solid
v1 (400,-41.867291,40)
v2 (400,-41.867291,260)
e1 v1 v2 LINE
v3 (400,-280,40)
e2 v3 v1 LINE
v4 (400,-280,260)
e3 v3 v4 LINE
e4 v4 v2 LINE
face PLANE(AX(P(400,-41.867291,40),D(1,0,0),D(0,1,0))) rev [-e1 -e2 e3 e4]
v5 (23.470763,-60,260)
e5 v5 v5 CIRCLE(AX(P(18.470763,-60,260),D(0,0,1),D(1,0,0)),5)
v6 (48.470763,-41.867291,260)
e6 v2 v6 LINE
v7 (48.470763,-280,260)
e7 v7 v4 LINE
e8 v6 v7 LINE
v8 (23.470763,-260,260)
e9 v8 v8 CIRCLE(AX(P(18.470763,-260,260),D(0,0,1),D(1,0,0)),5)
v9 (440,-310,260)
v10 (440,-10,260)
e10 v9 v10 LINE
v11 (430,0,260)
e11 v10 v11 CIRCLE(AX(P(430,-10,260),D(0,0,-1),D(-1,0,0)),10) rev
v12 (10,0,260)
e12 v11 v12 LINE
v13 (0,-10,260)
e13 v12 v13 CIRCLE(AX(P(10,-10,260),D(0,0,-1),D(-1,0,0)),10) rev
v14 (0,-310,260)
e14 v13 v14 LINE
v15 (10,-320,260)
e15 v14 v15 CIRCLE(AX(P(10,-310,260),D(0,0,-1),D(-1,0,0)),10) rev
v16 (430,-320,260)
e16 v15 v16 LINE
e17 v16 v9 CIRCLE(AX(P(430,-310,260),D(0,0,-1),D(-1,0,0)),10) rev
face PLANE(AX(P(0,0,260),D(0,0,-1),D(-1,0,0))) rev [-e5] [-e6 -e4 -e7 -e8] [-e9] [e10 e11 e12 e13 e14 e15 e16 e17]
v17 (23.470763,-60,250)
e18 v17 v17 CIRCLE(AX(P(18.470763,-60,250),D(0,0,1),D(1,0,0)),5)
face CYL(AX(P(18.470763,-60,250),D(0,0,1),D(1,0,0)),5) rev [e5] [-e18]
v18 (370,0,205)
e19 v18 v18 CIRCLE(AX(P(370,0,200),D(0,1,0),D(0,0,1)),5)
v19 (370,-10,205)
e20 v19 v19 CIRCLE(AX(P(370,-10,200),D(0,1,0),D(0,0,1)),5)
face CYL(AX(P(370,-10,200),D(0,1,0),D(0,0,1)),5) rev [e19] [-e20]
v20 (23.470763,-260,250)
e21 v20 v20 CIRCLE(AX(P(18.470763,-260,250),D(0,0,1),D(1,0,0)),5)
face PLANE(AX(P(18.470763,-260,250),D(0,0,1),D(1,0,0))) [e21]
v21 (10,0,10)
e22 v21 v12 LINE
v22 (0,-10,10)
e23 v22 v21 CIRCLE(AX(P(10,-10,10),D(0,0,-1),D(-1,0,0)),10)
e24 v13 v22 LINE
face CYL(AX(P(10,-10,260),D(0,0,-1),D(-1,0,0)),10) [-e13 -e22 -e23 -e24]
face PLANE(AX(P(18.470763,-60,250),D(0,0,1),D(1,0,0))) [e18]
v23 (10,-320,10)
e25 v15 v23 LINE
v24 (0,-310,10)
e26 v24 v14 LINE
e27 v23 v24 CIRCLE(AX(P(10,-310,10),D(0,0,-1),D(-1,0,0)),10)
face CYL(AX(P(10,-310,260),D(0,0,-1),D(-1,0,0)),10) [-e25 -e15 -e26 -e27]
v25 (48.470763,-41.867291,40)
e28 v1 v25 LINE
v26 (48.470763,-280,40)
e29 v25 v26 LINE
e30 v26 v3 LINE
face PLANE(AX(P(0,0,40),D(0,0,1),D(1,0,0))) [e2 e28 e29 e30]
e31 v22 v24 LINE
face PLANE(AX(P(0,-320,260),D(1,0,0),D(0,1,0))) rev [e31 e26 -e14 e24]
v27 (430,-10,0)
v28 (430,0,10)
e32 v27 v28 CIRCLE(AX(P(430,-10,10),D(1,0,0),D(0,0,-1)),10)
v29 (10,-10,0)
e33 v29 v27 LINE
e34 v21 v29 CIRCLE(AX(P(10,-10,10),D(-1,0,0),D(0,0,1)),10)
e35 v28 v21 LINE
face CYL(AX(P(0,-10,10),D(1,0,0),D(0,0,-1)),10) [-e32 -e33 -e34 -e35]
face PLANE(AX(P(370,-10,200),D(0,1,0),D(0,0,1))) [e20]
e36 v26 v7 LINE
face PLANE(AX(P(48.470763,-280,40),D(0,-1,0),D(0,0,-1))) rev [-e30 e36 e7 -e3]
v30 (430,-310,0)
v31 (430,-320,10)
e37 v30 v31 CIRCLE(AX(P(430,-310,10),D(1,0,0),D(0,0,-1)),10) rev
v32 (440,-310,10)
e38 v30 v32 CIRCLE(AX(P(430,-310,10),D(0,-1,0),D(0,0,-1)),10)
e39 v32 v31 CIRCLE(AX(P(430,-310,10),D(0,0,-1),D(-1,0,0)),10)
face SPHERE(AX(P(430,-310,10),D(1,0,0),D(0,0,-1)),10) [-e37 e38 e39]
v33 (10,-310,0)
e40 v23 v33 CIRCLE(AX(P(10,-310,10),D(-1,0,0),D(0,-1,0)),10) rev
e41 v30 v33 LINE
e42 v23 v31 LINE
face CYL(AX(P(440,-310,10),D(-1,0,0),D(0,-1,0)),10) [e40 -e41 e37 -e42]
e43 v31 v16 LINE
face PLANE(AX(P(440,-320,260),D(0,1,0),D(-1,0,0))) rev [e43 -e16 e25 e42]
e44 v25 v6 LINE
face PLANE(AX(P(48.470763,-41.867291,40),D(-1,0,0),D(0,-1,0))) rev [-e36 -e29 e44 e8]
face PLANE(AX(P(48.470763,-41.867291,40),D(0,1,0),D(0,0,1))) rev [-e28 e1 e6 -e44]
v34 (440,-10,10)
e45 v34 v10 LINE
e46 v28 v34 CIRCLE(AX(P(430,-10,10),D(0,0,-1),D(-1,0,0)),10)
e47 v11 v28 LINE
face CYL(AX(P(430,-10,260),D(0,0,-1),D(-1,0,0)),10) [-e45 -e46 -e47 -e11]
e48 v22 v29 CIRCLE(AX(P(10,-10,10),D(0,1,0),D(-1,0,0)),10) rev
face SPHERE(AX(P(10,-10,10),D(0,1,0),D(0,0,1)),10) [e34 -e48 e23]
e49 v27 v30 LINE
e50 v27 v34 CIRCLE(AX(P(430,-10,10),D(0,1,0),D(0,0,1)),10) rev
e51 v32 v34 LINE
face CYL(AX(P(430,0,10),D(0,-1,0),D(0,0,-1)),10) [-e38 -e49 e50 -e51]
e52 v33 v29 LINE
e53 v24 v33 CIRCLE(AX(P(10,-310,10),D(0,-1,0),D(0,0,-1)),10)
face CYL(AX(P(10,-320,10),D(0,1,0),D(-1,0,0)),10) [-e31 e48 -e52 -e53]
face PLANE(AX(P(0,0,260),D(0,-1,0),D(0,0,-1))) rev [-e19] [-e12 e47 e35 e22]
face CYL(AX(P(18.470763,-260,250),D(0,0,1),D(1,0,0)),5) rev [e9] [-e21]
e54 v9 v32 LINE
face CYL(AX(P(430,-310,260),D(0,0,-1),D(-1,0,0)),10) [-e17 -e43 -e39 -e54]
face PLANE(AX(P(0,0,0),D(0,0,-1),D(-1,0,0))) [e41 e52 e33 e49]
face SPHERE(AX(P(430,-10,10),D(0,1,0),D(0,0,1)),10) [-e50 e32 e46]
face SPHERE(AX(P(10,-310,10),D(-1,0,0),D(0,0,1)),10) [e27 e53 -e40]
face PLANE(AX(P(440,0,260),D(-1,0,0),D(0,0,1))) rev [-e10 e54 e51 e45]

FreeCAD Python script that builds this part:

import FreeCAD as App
import Part
import Sketcher
from FreeCAD import Vector
Q = App.Units.Quantity


def edges_at(feature, points):
    """Names of the edges that pass closest to the given points."""
    edges = feature.Shape.Edges
    near = lambda p: min(range(len(edges)), key=lambda i: edges[i].distToShape(Part.Vertex(*p))[0])
    return sorted({f"Edge{near(p) + 1}" for p in points})

doc = App.newDocument("Part")
params = doc.addObject("Spreadsheet::Sheet", "Params")
for row, (alias, value) in enumerate([
    ("sketch1_width", "440 mm"),
    ("sketch1_height", "320 mm"),
    ("pad1_length", "260 mm"),
    ("pocket1_length", "220 mm"),
    ("fillet_radius", "10 mm"),
    ("sketch3_diameter", "10 mm"),
    ("pocket2_length", "10 mm"),
    ("sketch4_diameter", "10 mm"),
    ("pocket3_length", "10 mm"),
], start=1):
    params.set(f"A{row}", alias)
    params.set(f"B{row}", "=" + value)
    params.setAlias(f"B{row}", alias)

body = doc.addObject("PartDesign::Body", "Body")

sketch1 = body.newObject("Sketcher::SketchObject", "Sketch")
sketch1.AttachmentSupport = (doc.getObject("XY_Plane"), [""])
sketch1.MapMode = "FlatFace"
sketch1.addGeometry([
    Part.LineSegment(Vector(0, 0, 0), Vector(0, -320, 0)),
    Part.LineSegment(Vector(0, -320, 0), Vector(440, -320, 0)),
    Part.LineSegment(Vector(440, -320, 0), Vector(440, 0, 0)),
    Part.LineSegment(Vector(440, 0, 0), Vector(0, 0, 0)),
], False)
sketch1.addConstraint([
    Sketcher.Constraint("Coincident", 0, 2, 1, 1),
    Sketcher.Constraint("Coincident", 1, 2, 2, 1),
    Sketcher.Constraint("Coincident", 2, 2, 3, 1),
    Sketcher.Constraint("Coincident", 3, 2, 0, 1),
    Sketcher.Constraint("Vertical", 0),
    Sketcher.Constraint("Horizontal", 1),
    Sketcher.Constraint("Vertical", 2),
    Sketcher.Constraint("Horizontal", 3),
    Sketcher.Constraint("Coincident", 3, 2, -1, 1),
    Sketcher.Constraint("DistanceX", 1, 1, 1, 2, Q("440 mm")),
    Sketcher.Constraint("DistanceY", 0, 2, 0, 1, Q("320 mm")),
])
sketch1.setExpression("Constraints[9]", "Params.sketch1_width")
sketch1.setExpression("Constraints[10]", "Params.sketch1_height")
pad1 = body.newObject("PartDesign::Pad", "Pad")
pad1.Profile = sketch1
pad1.setExpression("Length", "Params.pad1_length")

sketch2 = body.newObject("Sketcher::SketchObject", "Sketch001")
sketch2.AttachmentSupport = (doc.getObject("XY_Plane"), [""])
sketch2.MapMode = "FlatFace"
sketch2.AttachmentOffset = App.Placement(Vector(0, 0, 260), App.Rotation())
sketch2.addGeometry([
    Part.LineSegment(Vector(48, -42, 0), Vector(48, -280, 0)),
    Part.LineSegment(Vector(48, -280, 0), Vector(400, -280, 0)),
    Part.LineSegment(Vector(400, -280, 0), Vector(400, -42, 0)),
    Part.LineSegment(Vector(400, -42, 0), Vector(48, -42, 0)),
], False)
sketch2.addConstraint([
    Sketcher.Constraint("Coincident", 0, 2, 1, 1),
    Sketcher.Constraint("Coincident", 1, 2, 2, 1),
    Sketcher.Constraint("Coincident", 2, 2, 3, 1),
    Sketcher.Constraint("Coincident", 3, 2, 0, 1),
    Sketcher.Constraint("Vertical", 0),
    Sketcher.Constraint("Horizontal", 1),
    Sketcher.Constraint("Vertical", 2),
    Sketcher.Constraint("Horizontal", 3),
    Sketcher.Constraint("DistanceY", 0, 2, -1, 1, Q("280 mm")),
    Sketcher.Constraint("DistanceX", -1, 1, 1, 2, Q("400 mm")),
    Sketcher.Constraint("DistanceY", 0, 2, 0, 1, Q("238.132709 mm")),
    Sketcher.Constraint("DistanceX", 1, 1, 1, 2, Q("351.529237 mm")),
])
pocket1 = body.newObject("PartDesign::Pocket", "Pocket")
pocket1.Profile = sketch2
pocket1.setExpression("Length", "Params.pocket1_length")
doc.recompute()

fillet = body.newObject("PartDesign::Fillet", "Fillet")
fillet.Base = (pocket1, edges_at(pocket1, [
    (220, 0, 0),
    (440, -160, 0),
    (220, -320, 0),
    (0, -160, 0),
    (0, 0, 130),
    (440, 0, 130),
    (440, -320, 130),
    (0, -320, 130),
]))
fillet.setExpression("Radius", "Params.fillet_radius")

sketch3 = body.newObject("Sketcher::SketchObject", "Sketch002")
sketch3.AttachmentSupport = (doc.getObject("XY_Plane"), [""])
sketch3.MapMode = "FlatFace"
sketch3.AttachmentOffset = App.Placement(Vector(0, 0, 260), App.Rotation())
sketch3.addGeometry([
    Part.Circle(Vector(18, -60, 0), Vector(0, 0, 1), 5),
    Part.Circle(Vector(18, -260, 0), Vector(0, 0, 1), 5),
], False)
sketch3.addConstraint([
    Sketcher.Constraint("Equal", 0, 1),
    Sketcher.Constraint("Vertical", 0, 3, 1, 3),
    Sketcher.Constraint("Diameter", 0, Q("10 mm")),
    Sketcher.Constraint("DistanceY", 0, 3, -1, 1, Q("60 mm")),
    Sketcher.Constraint("DistanceY", 1, 3, -1, 1, Q("260 mm")),
    Sketcher.Constraint("DistanceX", -1, 1, 0, 3, Q("18.470763 mm")),
])
sketch3.setExpression("Constraints[2]", "Params.sketch3_diameter")
pocket2 = body.newObject("PartDesign::Pocket", "Pocket001")
pocket2.Profile = sketch3
pocket2.setExpression("Length", "Params.pocket2_length")

sketch4 = body.newObject("Sketcher::SketchObject", "Sketch003")
sketch4.AttachmentSupport = (doc.getObject("XZ_Plane"), [""])
sketch4.MapMode = "FlatFace"
sketch4.addGeometry(Part.Circle(Vector(370, 200, 0), Vector(0, 0, 1), 5), False)
sketch4.addConstraint([
    Sketcher.Constraint("Diameter", 0, Q("10 mm")),
    Sketcher.Constraint("DistanceX", -1, 1, 0, 3, Q("370 mm")),
    Sketcher.Constraint("DistanceY", -1, 1, 0, 3, Q("200 mm")),
])
sketch4.setExpression("Constraints[0]", "Params.sketch4_diameter")
pocket3 = body.newObject("PartDesign::Pocket", "Pocket002")
pocket3.Profile = sketch4
pocket3.setExpression("Length", "Params.pocket3_length")
pocket3.Reversed = True

doc.recompute()
